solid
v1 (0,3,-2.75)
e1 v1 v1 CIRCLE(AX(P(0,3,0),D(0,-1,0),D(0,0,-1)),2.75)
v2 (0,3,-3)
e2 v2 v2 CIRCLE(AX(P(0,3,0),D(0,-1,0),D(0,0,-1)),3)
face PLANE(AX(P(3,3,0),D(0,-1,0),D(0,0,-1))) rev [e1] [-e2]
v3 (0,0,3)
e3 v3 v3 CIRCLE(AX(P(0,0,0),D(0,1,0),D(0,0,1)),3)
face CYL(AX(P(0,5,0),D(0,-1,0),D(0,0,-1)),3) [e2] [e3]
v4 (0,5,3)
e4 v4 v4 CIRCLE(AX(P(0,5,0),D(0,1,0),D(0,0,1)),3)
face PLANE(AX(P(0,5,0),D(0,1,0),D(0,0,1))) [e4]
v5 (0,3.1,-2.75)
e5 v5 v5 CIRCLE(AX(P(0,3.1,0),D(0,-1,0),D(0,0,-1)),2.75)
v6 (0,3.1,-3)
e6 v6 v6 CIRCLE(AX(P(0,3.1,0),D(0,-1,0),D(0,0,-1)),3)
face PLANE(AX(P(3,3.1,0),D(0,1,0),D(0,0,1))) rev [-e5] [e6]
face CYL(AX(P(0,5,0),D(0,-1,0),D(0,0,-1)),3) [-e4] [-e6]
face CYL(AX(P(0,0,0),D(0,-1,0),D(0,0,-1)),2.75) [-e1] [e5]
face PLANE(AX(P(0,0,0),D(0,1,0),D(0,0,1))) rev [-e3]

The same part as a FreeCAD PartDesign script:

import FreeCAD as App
import Part
import Sketcher
from FreeCAD import Vector
Q = App.Units.Quantity

doc = App.newDocument("Part")
body = doc.addObject("PartDesign::Body", "Body")

# Sketch on XZ plane
sketch1 = body.newObject("Sketcher::SketchObject", "Sketch")
sketch1.AttachmentSupport = (doc.getObject("XZ_Plane"), [""])
sketch1.MapMode = "FlatFace"
sketch1.addGeometry(Part.Circle(Vector(0, 0, 0), Vector(0, 0, 1), 3), False)
sketch1.addConstraint([
    Sketcher.Constraint("Coincident", 0, 3, -1, 1),
    Sketcher.Constraint("Diameter", 0, Q("6 mm")),
])
pad1 = body.newObject("PartDesign::Pad", "Pad")
pad1.Profile = sketch1
pad1.Length = 5
pad1.Reversed = True

# Sketch on XY plane
sketch2 = body.newObject("Sketcher::SketchObject", "Sketch001")
sketch2.AttachmentSupport = (doc.getObject("XY_Plane"), [""])
sketch2.MapMode = "FlatFace"
sketch2.addGeometry([
    Part.LineSegment(Vector(2.75, 3.1, 0), Vector(2.75, 3, 0)),
    Part.LineSegment(Vector(2.75, 3, 0), Vector(3, 3, 0)),
    Part.LineSegment(Vector(3, 3, 0), Vector(3, 3.1, 0)),
    Part.LineSegment(Vector(3, 3.1, 0), Vector(2.75, 3.1, 0)),
], False)
sketch2.addConstraint([
    Sketcher.Constraint("Coincident", 0, 2, 1, 1),
    Sketcher.Constraint("Coincident", 1, 2, 2, 1),
    Sketcher.Constraint("Coincident", 2, 2, 3, 1),
    Sketcher.Constraint("Coincident", 3, 2, 0, 1),
    Sketcher.Constraint("Vertical", 0),
    Sketcher.Constraint("Horizontal", 1),
    Sketcher.Constraint("Vertical", 2),
    Sketcher.Constraint("Horizontal", 3),
    Sketcher.Constraint("DistanceY", 0, 2, 0, 1, Q("0.1 mm")),
    Sketcher.Constraint("DistanceY", -1, 1, 0, 2, Q("3 mm")),
    Sketcher.Constraint("DistanceX", -1, 1, 1, 2, Q("3 mm")),
    Sketcher.Constraint("DistanceX", 1, 1, 1, 2, Q("0.25 mm")),
])
groove = body.newObject("PartDesign::Groove", "Groove")
groove.Profile = sketch2
groove.ReferenceAxis = (sketch2, ["V_Axis"])
groove.Angle = 360

doc.recompute()
